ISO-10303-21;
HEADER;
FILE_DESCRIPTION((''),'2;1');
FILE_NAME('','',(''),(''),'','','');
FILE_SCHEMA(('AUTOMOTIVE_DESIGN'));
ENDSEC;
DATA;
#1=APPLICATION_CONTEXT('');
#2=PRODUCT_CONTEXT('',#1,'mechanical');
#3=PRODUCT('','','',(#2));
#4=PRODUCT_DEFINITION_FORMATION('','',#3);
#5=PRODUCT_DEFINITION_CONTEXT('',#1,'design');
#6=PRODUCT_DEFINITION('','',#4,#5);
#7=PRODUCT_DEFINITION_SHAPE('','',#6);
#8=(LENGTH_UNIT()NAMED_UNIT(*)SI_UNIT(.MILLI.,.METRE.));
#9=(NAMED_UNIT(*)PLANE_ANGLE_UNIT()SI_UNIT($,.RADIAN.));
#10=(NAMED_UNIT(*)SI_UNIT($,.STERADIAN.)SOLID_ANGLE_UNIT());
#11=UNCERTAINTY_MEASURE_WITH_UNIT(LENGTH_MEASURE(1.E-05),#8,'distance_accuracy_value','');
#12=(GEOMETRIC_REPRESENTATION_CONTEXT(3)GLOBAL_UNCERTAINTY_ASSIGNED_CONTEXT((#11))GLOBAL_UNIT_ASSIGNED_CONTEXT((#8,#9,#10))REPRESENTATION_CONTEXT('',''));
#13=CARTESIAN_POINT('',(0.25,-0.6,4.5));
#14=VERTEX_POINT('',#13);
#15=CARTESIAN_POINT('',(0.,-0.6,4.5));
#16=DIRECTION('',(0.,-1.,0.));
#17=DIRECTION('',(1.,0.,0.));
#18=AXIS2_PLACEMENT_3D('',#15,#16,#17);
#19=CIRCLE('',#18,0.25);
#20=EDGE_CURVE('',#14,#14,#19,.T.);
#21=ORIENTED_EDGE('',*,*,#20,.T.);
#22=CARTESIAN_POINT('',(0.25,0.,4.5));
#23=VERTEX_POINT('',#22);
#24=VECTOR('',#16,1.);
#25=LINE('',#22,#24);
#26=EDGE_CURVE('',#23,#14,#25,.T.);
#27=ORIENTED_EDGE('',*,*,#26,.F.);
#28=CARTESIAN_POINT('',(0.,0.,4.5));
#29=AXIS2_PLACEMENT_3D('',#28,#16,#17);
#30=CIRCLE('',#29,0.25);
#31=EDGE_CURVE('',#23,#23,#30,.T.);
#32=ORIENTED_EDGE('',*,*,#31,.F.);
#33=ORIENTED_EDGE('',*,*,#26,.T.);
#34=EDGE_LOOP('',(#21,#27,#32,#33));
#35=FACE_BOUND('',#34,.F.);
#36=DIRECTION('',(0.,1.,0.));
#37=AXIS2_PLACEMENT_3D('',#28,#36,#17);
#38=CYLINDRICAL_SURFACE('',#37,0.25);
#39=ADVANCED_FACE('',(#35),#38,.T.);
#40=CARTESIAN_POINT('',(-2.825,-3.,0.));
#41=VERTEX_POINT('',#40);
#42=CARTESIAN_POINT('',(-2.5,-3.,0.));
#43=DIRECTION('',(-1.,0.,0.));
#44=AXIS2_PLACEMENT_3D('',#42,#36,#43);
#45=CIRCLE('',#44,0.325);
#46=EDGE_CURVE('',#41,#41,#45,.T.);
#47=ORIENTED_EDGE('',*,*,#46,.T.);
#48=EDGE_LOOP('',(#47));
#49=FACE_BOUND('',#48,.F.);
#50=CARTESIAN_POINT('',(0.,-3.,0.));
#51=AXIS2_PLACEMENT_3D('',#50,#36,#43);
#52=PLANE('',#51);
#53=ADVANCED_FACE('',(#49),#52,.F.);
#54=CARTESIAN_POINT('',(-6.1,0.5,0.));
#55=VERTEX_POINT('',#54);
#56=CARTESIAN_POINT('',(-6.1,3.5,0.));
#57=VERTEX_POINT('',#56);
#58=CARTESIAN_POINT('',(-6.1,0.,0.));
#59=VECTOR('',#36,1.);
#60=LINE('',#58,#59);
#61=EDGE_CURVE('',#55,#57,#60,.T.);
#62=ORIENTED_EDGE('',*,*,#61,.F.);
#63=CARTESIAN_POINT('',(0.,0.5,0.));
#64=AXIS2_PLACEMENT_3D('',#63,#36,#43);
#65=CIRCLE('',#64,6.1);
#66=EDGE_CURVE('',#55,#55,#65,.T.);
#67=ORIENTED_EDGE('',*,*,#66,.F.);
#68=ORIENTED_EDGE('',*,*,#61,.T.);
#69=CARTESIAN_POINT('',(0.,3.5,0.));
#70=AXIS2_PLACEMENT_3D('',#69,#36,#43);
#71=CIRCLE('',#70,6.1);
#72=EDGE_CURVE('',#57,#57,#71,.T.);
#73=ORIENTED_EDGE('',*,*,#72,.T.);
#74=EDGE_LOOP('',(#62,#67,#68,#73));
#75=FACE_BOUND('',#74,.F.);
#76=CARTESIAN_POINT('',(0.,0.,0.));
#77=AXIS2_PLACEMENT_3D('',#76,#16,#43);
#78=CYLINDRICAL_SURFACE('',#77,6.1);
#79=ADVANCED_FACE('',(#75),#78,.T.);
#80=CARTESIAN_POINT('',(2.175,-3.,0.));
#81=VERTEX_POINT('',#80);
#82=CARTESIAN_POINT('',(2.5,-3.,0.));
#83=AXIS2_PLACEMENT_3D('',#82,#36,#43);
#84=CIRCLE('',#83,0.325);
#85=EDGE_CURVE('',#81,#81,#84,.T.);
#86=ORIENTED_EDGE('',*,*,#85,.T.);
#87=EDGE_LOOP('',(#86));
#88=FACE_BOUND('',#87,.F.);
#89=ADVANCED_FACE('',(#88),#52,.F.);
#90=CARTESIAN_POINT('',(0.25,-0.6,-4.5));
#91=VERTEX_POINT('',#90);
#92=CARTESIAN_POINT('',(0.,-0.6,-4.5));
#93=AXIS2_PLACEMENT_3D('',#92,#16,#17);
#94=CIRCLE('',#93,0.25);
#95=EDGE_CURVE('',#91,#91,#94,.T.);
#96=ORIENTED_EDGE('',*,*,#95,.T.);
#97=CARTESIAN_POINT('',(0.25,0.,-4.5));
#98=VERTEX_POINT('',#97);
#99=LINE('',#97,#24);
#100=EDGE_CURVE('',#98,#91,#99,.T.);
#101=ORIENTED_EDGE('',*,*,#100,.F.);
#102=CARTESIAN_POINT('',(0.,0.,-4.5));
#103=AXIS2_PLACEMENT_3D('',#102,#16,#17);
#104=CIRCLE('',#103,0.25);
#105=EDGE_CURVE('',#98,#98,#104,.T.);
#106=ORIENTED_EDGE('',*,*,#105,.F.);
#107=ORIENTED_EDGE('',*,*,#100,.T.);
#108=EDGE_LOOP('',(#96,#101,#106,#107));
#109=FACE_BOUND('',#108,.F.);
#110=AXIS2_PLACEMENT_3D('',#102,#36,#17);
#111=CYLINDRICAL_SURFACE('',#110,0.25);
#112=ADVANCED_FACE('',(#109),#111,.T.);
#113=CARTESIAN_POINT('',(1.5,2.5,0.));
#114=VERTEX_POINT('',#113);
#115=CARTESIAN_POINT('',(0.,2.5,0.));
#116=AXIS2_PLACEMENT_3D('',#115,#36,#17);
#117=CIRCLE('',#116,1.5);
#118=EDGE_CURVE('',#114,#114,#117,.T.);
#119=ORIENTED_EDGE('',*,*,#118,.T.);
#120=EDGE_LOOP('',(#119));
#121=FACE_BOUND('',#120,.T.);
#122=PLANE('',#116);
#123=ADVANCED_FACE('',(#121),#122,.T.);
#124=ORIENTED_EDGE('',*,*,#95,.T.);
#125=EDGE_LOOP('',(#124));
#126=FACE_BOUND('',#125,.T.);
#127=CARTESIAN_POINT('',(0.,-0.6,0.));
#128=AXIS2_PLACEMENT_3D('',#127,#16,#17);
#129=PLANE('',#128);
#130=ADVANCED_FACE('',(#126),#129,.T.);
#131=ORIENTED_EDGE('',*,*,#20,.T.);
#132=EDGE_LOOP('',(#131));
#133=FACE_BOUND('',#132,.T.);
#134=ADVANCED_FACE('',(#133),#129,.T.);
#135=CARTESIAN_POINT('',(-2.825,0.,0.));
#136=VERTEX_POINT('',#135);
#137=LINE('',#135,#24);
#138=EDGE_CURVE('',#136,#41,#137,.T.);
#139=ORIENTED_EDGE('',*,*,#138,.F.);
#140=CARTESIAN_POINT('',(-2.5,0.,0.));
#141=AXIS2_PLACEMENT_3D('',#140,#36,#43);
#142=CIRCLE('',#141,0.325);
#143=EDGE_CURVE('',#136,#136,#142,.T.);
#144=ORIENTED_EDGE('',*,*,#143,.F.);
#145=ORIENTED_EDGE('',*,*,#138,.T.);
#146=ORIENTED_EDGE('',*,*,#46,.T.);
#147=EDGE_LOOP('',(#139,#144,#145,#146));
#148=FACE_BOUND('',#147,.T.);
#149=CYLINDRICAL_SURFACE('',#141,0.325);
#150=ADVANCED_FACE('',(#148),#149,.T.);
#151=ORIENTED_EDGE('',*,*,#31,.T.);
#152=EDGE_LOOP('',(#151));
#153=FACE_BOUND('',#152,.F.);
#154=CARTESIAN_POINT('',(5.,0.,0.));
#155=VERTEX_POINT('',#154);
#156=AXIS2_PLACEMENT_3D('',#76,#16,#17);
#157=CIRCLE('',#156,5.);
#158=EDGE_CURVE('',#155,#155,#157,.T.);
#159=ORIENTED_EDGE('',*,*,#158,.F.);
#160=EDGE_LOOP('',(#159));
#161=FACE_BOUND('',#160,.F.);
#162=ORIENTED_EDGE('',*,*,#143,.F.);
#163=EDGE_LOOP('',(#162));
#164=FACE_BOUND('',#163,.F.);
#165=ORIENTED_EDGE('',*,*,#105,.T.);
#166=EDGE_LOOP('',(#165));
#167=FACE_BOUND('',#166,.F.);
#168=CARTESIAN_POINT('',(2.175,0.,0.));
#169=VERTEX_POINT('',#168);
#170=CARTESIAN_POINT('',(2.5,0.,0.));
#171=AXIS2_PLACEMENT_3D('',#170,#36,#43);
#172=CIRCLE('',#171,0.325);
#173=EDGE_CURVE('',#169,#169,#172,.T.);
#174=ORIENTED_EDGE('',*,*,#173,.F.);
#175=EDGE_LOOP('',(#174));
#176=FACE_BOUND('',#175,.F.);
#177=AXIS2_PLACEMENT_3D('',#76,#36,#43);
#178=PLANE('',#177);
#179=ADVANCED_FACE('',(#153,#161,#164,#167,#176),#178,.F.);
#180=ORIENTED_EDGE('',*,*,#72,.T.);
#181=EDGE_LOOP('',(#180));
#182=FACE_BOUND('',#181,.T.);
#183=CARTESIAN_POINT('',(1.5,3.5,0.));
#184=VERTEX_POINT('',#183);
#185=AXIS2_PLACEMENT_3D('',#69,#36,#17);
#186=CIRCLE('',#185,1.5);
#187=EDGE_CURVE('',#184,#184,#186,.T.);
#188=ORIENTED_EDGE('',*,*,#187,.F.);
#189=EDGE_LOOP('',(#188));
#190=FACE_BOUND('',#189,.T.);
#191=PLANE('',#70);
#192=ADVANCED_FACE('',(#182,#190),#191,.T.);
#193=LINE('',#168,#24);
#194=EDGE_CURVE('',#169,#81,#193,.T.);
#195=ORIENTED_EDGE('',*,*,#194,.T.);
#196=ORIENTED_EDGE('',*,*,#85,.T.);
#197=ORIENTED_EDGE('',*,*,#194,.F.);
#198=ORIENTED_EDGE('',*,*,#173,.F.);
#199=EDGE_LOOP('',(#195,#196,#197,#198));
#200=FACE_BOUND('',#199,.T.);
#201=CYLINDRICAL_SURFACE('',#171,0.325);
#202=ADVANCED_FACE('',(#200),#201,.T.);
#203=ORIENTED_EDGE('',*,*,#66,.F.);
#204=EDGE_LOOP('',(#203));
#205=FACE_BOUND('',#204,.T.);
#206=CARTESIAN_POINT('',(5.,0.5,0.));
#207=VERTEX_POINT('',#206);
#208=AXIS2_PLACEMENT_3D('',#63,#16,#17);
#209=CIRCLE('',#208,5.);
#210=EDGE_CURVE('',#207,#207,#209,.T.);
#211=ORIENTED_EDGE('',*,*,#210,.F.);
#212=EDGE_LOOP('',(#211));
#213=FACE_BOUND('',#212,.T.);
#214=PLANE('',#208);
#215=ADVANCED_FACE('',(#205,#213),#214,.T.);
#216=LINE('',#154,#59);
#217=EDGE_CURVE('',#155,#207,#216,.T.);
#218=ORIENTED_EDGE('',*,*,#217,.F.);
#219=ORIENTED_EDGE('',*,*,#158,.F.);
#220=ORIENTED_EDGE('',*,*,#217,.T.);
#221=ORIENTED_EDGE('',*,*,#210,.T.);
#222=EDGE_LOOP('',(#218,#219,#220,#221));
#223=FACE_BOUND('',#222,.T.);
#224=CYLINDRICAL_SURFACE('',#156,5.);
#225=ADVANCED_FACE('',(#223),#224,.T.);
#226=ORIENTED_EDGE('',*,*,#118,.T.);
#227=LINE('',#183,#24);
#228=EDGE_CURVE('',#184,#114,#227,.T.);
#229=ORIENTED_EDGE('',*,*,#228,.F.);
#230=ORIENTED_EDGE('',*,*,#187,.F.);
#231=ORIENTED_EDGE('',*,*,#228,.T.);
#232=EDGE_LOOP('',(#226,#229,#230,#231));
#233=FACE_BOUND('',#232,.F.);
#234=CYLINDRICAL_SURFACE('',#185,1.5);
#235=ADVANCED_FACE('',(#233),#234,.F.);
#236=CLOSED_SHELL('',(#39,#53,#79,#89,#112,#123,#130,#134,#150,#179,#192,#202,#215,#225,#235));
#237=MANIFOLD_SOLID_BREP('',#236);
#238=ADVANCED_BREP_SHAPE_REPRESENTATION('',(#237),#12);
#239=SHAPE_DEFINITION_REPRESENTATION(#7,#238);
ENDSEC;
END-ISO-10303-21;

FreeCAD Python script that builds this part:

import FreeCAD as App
import Part
import Sketcher

V = App.Vector
Q = App.Units.Quantity

doc = App.newDocument("Part")
params = doc.addObject("Spreadsheet::Sheet", "Params")
for row, (alias, value) in enumerate([
    ("sketch1_diameter", "12.2 mm"),
    ("pad1_length", "3.5 mm"),
    ("sketch2_diameter", "3 mm"),
    ("pocket1_length", "1 mm"),
    ("sketch3_diameter", "10 mm"),
    ("sketch3_diameter2", "12.2 mm"),
    ("pocket2_length", "0.5 mm"),
    ("sketch4_diameter", "0.65 mm"),
    ("pad2_length", "3 mm"),
    ("sketch5_diameter", "0.5 mm"),
    ("pad3_length", "0.6 mm"),
], start=1):
    params.set(f"A{row}", alias)
    params.set(f"B{row}", "=" + value)
    params.setAlias(f"B{row}", alias)

body = doc.addObject("PartDesign::Body", "Body")

# Sketch on XZ plane
sketch1 = doc.addObject("Sketcher::SketchObject", "Sketch")
body.addObject(sketch1)
sketch1.AttachmentSupport = (doc.XZ_Plane, [""])
sketch1.MapMode = "FlatFace"
sketch1.addGeometry(Part.Circle(V(0, 0, 0), V(0, 0, 1), 6.1), False)
sketch1.addConstraint(Sketcher.Constraint("Coincident", 0, 3, -1, 1))
sketch1.addConstraint(Sketcher.Constraint("Diameter", 0, Q("12.2 mm")))
sketch1.setExpression("Constraints[1]", "Params.sketch1_diameter")
pad1 = doc.addObject("PartDesign::Pad", "Pad")
body.addObject(pad1)
pad1.Profile = sketch1
pad1.setExpression("Length", "Params.pad1_length")
pad1.Reversed = True

# Sketch on XZ plane
sketch2 = doc.addObject("Sketcher::SketchObject", "Sketch001")
body.addObject(sketch2)
sketch2.AttachmentSupport = (doc.XZ_Plane, [""])
sketch2.MapMode = "FlatFace"
sketch2.AttachmentOffset = App.Placement(V(0, 0, -3.5), App.Rotation())
sketch2.addGeometry(Part.Circle(V(0, 0, 0), V(0, 0, 1), 1.5), False)
sketch2.addConstraint(Sketcher.Constraint("Coincident", 0, 3, -1, 1))
sketch2.addConstraint(Sketcher.Constraint("Diameter", 0, Q("3 mm")))
sketch2.setExpression("Constraints[1]", "Params.sketch2_diameter")
pocket1 = doc.addObject("PartDesign::Pocket", "Pocket")
body.addObject(pocket1)
pocket1.Profile = sketch2
pocket1.setExpression("Length", "Params.pocket1_length")
pocket1.Reversed = True

# Sketch on XZ plane
sketch3 = doc.addObject("Sketcher::SketchObject", "Sketch002")
body.addObject(sketch3)
sketch3.AttachmentSupport = (doc.XZ_Plane, [""])
sketch3.MapMode = "FlatFace"
sketch3.addGeometry(Part.Circle(V(0, 0, 0), V(0, 0, 1), 6.1), False)
sketch3.addGeometry(Part.Circle(V(0, 0, 0), V(0, 0, 1), 5), False)
sketch3.addConstraint(Sketcher.Constraint("Coincident", 0, 3, -1, 1))
sketch3.addConstraint(Sketcher.Constraint("Coincident", 1, 3, -1, 1))
sketch3.addConstraint(Sketcher.Constraint("Diameter", 1, Q("10 mm")))
sketch3.addConstraint(Sketcher.Constraint("Diameter", 0, Q("12.2 mm")))
sketch3.setExpression("Constraints[2]", "Params.sketch3_diameter")
sketch3.setExpression("Constraints[3]", "Params.sketch3_diameter2")
pocket2 = doc.addObject("PartDesign::Pocket", "Pocket001")
body.addObject(pocket2)
pocket2.Profile = sketch3
pocket2.setExpression("Length", "Params.pocket2_length")

# Sketch on XZ plane
sketch4 = doc.addObject("Sketcher::SketchObject", "Sketch003")
body.addObject(sketch4)
sketch4.AttachmentSupport = (doc.XZ_Plane, [""])
sketch4.MapMode = "FlatFace"
sketch4.addGeometry(Part.Circle(V(2.5, 0, 0), V(0, 0, 1), 0.325), False)
sketch4.addGeometry(Part.Circle(V(-2.5, 0, 0), V(0, 0, 1), 0.325), False)
sketch4.addConstraint(Sketcher.Constraint("Equal", 0, 1))
sketch4.addConstraint(Sketcher.Constraint("Symmetric", 0, 3, 1, 3, -1, 1))
sketch4.addConstraint(Sketcher.Constraint("PointOnObject", 0, 3, -1))
sketch4.addConstraint(Sketcher.Constraint("Diameter", 0, Q("0.65 mm")))
sketch4.addConstraint(Sketcher.Constraint("DistanceX", 1, 3, 0, 3, Q("5 mm")))
sketch4.setExpression("Constraints[3]", "Params.sketch4_diameter")
pad2 = doc.addObject("PartDesign::Pad", "Pad001")
body.addObject(pad2)
pad2.Profile = sketch4
pad2.setExpression("Length", "Params.pad2_length")

# Sketch on XZ plane
sketch5 = doc.addObject("Sketcher::SketchObject", "Sketch004")
body.addObject(sketch5)
sketch5.AttachmentSupport = (doc.XZ_Plane, [""])
sketch5.MapMode = "FlatFace"
sketch5.addGeometry(Part.Circle(V(0, -4.5, 0), V(0, 0, 1), 0.25), False)
sketch5.addGeometry(Part.Circle(V(0, 4.5, 0), V(0, 0, 1), 0.25), False)
sketch5.addConstraint(Sketcher.Constraint("Equal", 0, 1))
sketch5.addConstraint(Sketcher.Constraint("Symmetric", 0, 3, 1, 3, -1, 1))
sketch5.addConstraint(Sketcher.Constraint("PointOnObject", 0, 3, -2))
sketch5.addConstraint(Sketcher.Constraint("Diameter", 0, Q("0.5 mm")))
sketch5.addConstraint(Sketcher.Constraint("DistanceY", 0, 3, 1, 3, Q("9 mm")))
sketch5.setExpression("Constraints[3]", "Params.sketch5_diameter")
pad3 = doc.addObject("PartDesign::Pad", "Pad002")
body.addObject(pad3)
pad3.Profile = sketch5
pad3.setExpression("Length", "Params.pad3_length")

doc.recompute()
